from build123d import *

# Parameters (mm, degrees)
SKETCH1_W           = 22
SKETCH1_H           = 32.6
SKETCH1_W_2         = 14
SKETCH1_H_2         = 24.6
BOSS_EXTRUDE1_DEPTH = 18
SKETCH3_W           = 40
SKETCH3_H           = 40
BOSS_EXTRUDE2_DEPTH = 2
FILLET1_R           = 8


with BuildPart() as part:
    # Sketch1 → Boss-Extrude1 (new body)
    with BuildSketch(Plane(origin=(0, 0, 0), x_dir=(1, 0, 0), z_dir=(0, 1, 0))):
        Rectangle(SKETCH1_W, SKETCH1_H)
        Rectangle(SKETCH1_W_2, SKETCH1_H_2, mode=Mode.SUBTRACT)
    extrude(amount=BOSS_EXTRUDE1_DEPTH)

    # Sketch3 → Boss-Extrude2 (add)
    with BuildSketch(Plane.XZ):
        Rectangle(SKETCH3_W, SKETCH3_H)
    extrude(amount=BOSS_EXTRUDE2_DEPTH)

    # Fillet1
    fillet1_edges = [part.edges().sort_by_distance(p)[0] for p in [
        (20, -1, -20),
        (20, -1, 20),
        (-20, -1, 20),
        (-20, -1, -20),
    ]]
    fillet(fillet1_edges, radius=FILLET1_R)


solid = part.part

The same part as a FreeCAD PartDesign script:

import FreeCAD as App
import Part
import Sketcher


def edges_at(feature, points):
    """Names of the edges that pass closest to the given points."""
    edges = feature.Shape.Edges
    near = lambda p: min(range(len(edges)), key=lambda i: edges[i].distToShape(Part.Vertex(*p))[0])
    return sorted({f"Edge{near(p) + 1}" for p in points})


def add_polygon(sketch, points):
    """Adds a closed chain of lines whose ends are joined by coincident constraints."""
    first, n = sketch.GeometryCount, len(points)
    for a, b in zip(points, points[1:] + points[:1]):
        sketch.addGeometry(Part.LineSegment(App.Vector(*a, 0), App.Vector(*b, 0)), False)
    for i in range(n):
        sketch.addConstraint(Sketcher.Constraint("Coincident", first + i, 2, first + (i + 1) % n, 1))

doc = App.newDocument("Part")
body = doc.addObject("PartDesign::Body", "Body")

sketch1 = body.newObject("Sketcher::SketchObject", "Sketch")
sketch1.AttachmentSupport = (doc.getObject("XZ_Plane"), [""])
sketch1.MapMode = "FlatFace"
add_polygon(sketch1, [(-11, -16.3), (-11, 16.3), (11, 16.3), (11, -16.3)])
add_polygon(sketch1, [(7, 12.3), (-7, 12.3), (-7, -12.3), (7, -12.3)])
sketch1.addConstraint([
    Sketcher.Constraint("Vertical", 0),
    Sketcher.Constraint("Horizontal", 1),
    Sketcher.Constraint("Vertical", 2),
    Sketcher.Constraint("Horizontal", 3),
    Sketcher.Constraint("Horizontal", 4),
    Sketcher.Constraint("Vertical", 5),
    Sketcher.Constraint("Horizontal", 6),
    Sketcher.Constraint("Vertical", 7),
    Sketcher.Constraint("Symmetric", 0, 2, 2, 2, -1, 1),
    Sketcher.Constraint("Symmetric", 4, 2, 6, 2, -1, 1),
    Sketcher.Constraint("DistanceX", 1, 1, 1, 2, 22.0),
    Sketcher.Constraint("DistanceX", 4, 2, 4, 1, 14.0),
    Sketcher.Constraint("DistanceY", 0, 1, 0, 2, 32.6),
    Sketcher.Constraint("DistanceY", 5, 2, 5, 1, 24.6),
])
pad1 = body.newObject("PartDesign::Pad", "Pad")
pad1.Profile = sketch1
pad1.Length = 18
pad1.Reversed = True

sketch2 = body.newObject("Sketcher::SketchObject", "Sketch001")
sketch2.AttachmentSupport = (doc.getObject("XZ_Plane"), [""])
sketch2.MapMode = "FlatFace"
add_polygon(sketch2, [(-20, 20), (-20, -20), (20, -20), (20, 20)])
sketch2.addConstraint([
    Sketcher.Constraint("Vertical", 0),
    Sketcher.Constraint("Horizontal", 1),
    Sketcher.Constraint("Vertical", 2),
    Sketcher.Constraint("Horizontal", 3),
    Sketcher.Constraint("Symmetric", 0, 2, 2, 2, -1, 1),
    Sketcher.Constraint("Equal", 3, 0),
    Sketcher.Constraint("DistanceX", 1, 1, 1, 2, 40.0),
])
pad2 = body.newObject("PartDesign::Pad", "Pad001")
pad2.Profile = sketch2
pad2.Length = 2
doc.recompute()

fillet = body.newObject("PartDesign::Fillet", "Fillet")
fillet.Base = (pad2, edges_at(pad2, [
    (20, -1, -20),
    (20, -1, 20),
    (-20, -1, 20),
    (-20, -1, -20),
]))
fillet.Radius = 8

doc.recompute()
